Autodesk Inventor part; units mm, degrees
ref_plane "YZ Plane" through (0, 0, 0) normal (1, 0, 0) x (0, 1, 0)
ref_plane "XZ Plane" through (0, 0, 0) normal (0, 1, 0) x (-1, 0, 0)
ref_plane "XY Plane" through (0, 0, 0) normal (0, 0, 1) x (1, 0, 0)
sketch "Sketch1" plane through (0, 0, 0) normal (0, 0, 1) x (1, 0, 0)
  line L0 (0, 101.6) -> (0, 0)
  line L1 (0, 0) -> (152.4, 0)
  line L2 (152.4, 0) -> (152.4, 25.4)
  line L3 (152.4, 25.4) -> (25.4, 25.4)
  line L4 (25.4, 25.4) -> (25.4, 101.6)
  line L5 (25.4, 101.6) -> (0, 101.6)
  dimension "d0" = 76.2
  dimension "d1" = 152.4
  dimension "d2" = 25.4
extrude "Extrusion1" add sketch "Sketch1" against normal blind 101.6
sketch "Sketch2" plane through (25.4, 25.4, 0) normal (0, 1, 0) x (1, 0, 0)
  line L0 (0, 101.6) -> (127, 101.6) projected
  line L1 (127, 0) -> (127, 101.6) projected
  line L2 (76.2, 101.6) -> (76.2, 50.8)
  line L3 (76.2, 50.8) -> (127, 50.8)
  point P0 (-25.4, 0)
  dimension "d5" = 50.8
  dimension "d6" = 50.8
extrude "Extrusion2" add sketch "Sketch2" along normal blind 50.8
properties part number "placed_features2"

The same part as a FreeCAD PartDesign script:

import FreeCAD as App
import Part
import Sketcher

V = App.Vector
Q = App.Units.Quantity

doc = App.newDocument("Part")
body = doc.addObject("PartDesign::Body", "Body")

# Sketch on XY plane
sketch1 = doc.addObject("Sketcher::SketchObject", "Sketch")
body.addObject(sketch1)
sketch1.AttachmentSupport = (doc.XY_Plane, [""])
sketch1.MapMode = "FlatFace"
sketch1.addGeometry(Part.LineSegment(V(25.4, 101.6, 0), V(0, 101.6, 0)), False)
sketch1.addGeometry(Part.LineSegment(V(0, 101.6, 0), V(0, 0, 0)), False)
sketch1.addGeometry(Part.LineSegment(V(0, 0, 0), V(152.4, 0, 0)), False)
sketch1.addGeometry(Part.LineSegment(V(152.4, 0, 0), V(152.4, 25.4, 0)), False)
sketch1.addGeometry(Part.LineSegment(V(152.4, 25.4, 0), V(25.4, 25.4, 0)), False)
sketch1.addGeometry(Part.LineSegment(V(25.4, 25.4, 0), V(25.4, 101.6, 0)), False)
sketch1.addConstraint(Sketcher.Constraint("Coincident", 0, 2, 1, 1))
sketch1.addConstraint(Sketcher.Constraint("Coincident", 1, 2, 2, 1))
sketch1.addConstraint(Sketcher.Constraint("Coincident", 2, 2, 3, 1))
sketch1.addConstraint(Sketcher.Constraint("Coincident", 3, 2, 4, 1))
sketch1.addConstraint(Sketcher.Constraint("Coincident", 4, 2, 5, 1))
sketch1.addConstraint(Sketcher.Constraint("Coincident", 5, 2, 0, 1))
sketch1.addConstraint(Sketcher.Constraint("Horizontal", 0))
sketch1.addConstraint(Sketcher.Constraint("Vertical", 1))
sketch1.addConstraint(Sketcher.Constraint("Horizontal", 2))
sketch1.addConstraint(Sketcher.Constraint("Vertical", 3))
sketch1.addConstraint(Sketcher.Constraint("Horizontal", 4))
sketch1.addConstraint(Sketcher.Constraint("Vertical", 5))
sketch1.addConstraint(Sketcher.Constraint("Coincident", 1, 2, -1, 1))
sketch1.addConstraint(Sketcher.Constraint("Equal", 0, 3))
sketch1.addConstraint(Sketcher.Constraint("DistanceX", 0, 2, 0, 1, Q("1 in")))
sketch1.addConstraint(Sketcher.Constraint("DistanceX", 2, 1, 2, 2, Q("6 in")))
sketch1.addConstraint(Sketcher.Constraint("DistanceY", 5, 1, 5, 2, Q("3 in")))
pad1 = doc.addObject("PartDesign::Pad", "Pad")
body.addObject(pad1)
pad1.Profile = sketch1
pad1.Length = Q("4 in")
pad1.Reversed = True

# Sketch on XZ plane
sketch2 = doc.addObject("Sketcher::SketchObject", "Sketch001")
body.addObject(sketch2)
sketch2.AttachmentSupport = (doc.XZ_Plane, [""])
sketch2.MapMode = "FlatFace"
sketch2.AttachmentOffset = App.Placement(V(0, 0, -1 * 25.4), App.Rotation())
sketch2.addGeometry(Part.LineSegment(V(152.4, -101.6, 0), V(101.6, -101.6, 0)), False)
sketch2.addGeometry(Part.LineSegment(V(101.6, -101.6, 0), V(101.6, -50.8, 0)), False)
sketch2.addGeometry(Part.LineSegment(V(101.6, -50.8, 0), V(152.4, -50.8, 0)), False)
sketch2.addGeometry(Part.LineSegment(V(152.4, -50.8, 0), V(152.4, -101.6, 0)), False)
sketch2.addConstraint(Sketcher.Constraint("Coincident", 0, 2, 1, 1))
sketch2.addConstraint(Sketcher.Constraint("Coincident", 1, 2, 2, 1))
sketch2.addConstraint(Sketcher.Constraint("Coincident", 2, 2, 3, 1))
sketch2.addConstraint(Sketcher.Constraint("Coincident", 3, 2, 0, 1))
sketch2.addConstraint(Sketcher.Constraint("Horizontal", 0))
sketch2.addConstraint(Sketcher.Constraint("Vertical", 1))
sketch2.addConstraint(Sketcher.Constraint("Horizontal", 2))
sketch2.addConstraint(Sketcher.Constraint("Vertical", 3))
sketch2.addConstraint(Sketcher.Constraint("Equal", 2, 1))
sketch2.addConstraint(Sketcher.Constraint("DistanceX", 0, 2, 0, 1, Q("2 in")))
sketch2.addConstraint(Sketcher.Constraint("DistanceY", 1, 2, -1, 1, Q("2 in")))
sketch2.addConstraint(Sketcher.Constraint("DistanceX", -1, 1, 0, 2, Q("4 in")))
pad2 = doc.addObject("PartDesign::Pad", "Pad001")
body.addObject(pad2)
pad2.Profile = sketch2
pad2.Length = Q("2 in")
pad2.Reversed = True

doc.recompute()
